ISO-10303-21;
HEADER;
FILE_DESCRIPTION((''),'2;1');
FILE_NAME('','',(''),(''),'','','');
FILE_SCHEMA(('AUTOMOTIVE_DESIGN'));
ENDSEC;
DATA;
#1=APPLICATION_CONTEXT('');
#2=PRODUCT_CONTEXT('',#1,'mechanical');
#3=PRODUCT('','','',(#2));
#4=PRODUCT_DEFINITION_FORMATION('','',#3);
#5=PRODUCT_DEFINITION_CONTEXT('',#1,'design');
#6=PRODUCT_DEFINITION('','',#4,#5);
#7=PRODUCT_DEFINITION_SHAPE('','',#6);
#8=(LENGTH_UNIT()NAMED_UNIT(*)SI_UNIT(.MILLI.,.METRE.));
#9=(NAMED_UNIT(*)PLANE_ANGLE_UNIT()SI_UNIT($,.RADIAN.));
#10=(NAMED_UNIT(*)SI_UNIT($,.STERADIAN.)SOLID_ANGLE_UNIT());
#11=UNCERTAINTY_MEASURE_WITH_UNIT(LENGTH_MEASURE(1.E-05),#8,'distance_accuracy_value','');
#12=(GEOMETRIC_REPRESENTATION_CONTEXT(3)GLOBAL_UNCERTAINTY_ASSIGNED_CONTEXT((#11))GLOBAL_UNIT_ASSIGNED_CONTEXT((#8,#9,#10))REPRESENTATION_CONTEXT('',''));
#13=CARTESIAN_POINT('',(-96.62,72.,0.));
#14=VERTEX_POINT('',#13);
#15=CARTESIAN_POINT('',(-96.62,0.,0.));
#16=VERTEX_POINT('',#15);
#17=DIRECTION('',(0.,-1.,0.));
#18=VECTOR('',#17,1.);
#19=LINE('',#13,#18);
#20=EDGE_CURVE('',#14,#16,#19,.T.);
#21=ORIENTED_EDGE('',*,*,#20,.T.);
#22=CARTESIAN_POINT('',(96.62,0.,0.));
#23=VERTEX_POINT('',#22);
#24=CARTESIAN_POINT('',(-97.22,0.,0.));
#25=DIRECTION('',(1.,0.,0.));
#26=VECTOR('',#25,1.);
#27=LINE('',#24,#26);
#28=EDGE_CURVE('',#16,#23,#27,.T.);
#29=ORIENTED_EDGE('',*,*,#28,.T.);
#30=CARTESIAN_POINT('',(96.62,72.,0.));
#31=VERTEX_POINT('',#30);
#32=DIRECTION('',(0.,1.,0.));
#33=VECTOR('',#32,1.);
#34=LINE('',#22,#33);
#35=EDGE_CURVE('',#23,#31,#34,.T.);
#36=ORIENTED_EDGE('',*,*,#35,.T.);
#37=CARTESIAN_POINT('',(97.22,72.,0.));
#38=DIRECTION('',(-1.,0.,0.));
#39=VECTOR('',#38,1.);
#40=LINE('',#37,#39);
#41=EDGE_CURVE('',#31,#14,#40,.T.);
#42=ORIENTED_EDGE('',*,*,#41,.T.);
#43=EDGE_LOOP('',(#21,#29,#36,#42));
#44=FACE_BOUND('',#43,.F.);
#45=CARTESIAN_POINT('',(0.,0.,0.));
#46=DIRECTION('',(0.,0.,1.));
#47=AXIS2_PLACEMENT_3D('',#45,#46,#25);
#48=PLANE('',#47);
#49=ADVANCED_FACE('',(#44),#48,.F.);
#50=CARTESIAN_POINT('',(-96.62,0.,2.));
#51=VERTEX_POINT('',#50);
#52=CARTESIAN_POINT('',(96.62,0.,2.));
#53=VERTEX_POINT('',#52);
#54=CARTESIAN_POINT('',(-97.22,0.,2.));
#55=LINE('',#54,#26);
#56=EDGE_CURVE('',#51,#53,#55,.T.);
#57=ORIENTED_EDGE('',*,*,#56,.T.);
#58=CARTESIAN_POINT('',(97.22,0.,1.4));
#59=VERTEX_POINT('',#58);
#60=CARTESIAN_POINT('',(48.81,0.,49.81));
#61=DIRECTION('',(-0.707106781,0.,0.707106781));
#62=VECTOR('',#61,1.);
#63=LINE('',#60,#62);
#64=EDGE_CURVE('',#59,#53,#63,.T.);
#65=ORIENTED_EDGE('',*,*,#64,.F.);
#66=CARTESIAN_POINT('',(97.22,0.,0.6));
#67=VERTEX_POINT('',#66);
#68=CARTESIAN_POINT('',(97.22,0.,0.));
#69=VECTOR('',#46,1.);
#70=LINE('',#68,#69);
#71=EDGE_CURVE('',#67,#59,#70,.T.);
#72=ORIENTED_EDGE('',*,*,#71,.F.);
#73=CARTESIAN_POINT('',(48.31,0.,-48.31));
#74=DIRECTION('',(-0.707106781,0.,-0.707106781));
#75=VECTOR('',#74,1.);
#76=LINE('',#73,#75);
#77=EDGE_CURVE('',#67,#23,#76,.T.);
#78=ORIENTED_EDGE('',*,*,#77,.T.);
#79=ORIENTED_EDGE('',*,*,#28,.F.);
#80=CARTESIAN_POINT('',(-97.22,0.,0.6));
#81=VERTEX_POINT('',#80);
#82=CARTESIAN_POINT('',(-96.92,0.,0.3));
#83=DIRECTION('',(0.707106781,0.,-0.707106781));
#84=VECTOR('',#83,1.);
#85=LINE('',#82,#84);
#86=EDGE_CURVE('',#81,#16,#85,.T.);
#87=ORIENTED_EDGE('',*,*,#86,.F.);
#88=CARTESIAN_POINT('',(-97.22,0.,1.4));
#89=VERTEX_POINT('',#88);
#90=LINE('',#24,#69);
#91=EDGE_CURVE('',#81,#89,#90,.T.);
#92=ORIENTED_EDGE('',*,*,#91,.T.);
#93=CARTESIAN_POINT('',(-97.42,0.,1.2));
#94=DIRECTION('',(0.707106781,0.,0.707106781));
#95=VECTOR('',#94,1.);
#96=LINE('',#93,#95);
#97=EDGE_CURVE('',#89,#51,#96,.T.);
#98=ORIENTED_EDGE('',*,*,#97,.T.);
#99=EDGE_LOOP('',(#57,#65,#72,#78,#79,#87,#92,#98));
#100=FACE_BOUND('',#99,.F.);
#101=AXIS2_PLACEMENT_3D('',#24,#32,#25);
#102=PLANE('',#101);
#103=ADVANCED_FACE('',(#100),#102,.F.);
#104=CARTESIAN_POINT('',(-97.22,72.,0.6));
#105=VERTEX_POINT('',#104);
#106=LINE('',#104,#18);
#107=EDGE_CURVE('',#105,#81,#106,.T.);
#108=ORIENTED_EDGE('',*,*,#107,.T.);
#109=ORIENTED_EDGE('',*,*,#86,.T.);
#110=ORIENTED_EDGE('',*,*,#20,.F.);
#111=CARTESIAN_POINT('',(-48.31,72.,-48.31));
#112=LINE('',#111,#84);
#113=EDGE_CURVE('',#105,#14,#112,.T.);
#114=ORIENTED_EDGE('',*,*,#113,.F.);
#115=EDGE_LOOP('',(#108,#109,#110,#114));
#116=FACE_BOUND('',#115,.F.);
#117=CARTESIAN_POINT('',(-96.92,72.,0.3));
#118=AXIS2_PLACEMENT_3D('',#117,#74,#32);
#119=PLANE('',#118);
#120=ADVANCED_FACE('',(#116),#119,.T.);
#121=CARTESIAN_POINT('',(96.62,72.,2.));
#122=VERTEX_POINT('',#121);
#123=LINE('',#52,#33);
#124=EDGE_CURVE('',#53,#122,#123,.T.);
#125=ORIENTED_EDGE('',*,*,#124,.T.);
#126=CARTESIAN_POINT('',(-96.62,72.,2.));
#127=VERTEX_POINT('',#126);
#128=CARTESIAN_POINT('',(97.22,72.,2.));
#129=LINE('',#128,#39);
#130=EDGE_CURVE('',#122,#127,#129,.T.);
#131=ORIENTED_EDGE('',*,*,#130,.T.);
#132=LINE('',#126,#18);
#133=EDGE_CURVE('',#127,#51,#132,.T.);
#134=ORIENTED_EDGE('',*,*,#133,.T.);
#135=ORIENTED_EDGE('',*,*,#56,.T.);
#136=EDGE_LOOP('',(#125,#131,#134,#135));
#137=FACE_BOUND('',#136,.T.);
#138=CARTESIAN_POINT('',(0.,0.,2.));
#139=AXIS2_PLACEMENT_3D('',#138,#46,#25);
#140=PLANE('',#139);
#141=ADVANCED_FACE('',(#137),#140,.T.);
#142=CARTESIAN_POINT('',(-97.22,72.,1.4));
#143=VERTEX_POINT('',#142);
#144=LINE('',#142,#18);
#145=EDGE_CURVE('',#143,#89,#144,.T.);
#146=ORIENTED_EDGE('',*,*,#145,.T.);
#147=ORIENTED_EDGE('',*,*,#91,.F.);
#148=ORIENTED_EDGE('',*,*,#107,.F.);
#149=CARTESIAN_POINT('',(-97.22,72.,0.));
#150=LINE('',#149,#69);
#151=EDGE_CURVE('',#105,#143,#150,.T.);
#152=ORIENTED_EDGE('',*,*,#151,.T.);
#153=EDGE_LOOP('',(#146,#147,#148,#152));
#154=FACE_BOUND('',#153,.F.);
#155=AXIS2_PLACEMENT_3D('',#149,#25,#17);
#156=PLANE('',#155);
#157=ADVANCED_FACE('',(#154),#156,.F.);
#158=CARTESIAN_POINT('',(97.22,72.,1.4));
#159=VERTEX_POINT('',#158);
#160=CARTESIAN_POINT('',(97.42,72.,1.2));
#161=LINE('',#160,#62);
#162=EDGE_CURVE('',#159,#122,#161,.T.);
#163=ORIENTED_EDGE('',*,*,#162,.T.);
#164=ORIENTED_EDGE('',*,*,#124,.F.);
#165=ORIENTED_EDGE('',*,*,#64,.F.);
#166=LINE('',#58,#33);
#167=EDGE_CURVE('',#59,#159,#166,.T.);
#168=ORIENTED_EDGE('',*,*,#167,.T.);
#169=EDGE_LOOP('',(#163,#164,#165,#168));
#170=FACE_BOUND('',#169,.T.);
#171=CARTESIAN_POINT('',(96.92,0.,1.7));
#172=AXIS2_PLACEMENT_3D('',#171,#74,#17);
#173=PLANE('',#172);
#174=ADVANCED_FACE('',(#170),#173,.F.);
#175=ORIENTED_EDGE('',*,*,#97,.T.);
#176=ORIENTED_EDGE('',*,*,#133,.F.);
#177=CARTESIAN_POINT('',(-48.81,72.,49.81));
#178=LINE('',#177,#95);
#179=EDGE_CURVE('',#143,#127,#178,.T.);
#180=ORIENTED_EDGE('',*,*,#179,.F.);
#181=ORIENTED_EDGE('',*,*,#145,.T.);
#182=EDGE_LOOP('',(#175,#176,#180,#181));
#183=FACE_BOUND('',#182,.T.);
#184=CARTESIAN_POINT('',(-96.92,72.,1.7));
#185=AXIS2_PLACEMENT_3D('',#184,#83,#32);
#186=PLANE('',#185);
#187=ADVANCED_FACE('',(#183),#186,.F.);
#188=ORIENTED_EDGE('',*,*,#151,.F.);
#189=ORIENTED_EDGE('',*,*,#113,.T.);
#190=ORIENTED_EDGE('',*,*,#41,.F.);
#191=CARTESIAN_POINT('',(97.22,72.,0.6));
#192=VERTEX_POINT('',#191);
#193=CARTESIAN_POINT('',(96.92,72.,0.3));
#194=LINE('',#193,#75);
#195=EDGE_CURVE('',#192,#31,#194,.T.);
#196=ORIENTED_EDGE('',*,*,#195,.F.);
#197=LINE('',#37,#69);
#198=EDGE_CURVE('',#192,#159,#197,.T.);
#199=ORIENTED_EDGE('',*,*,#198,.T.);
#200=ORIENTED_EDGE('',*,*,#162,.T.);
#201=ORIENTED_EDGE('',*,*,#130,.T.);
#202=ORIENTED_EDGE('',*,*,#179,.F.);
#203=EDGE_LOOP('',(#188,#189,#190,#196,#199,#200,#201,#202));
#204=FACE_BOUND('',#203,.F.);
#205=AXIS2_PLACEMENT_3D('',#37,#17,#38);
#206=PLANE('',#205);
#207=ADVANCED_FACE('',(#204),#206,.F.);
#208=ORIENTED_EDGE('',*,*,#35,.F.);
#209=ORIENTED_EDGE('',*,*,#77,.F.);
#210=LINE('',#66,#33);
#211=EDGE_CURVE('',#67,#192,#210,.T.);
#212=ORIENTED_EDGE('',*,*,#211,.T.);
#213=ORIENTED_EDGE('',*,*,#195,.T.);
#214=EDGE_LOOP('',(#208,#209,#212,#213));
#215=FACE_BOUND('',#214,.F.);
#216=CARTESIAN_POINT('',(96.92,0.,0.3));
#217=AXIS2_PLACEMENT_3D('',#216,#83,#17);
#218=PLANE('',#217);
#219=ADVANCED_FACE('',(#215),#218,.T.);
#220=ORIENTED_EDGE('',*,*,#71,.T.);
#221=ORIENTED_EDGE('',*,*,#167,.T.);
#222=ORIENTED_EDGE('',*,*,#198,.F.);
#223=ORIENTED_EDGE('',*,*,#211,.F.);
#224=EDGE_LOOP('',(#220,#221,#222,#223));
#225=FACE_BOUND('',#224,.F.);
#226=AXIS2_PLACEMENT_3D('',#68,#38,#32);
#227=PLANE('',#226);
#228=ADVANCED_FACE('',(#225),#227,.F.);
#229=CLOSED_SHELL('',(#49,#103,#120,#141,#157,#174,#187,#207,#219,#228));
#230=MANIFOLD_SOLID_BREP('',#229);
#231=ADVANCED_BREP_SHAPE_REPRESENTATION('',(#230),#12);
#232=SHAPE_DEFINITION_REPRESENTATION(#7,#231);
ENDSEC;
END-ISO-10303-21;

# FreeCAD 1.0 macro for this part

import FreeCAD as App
import Part
import Sketcher
Q = App.Units.Quantity


def edges_at(feature, points):
    """Names of the edges that pass closest to the given points."""
    edges = feature.Shape.Edges
    near = lambda p: min(range(len(edges)), key=lambda i: edges[i].distToShape(Part.Vertex(*p))[0])
    return sorted({f"Edge{near(p) + 1}" for p in points})

doc = App.newDocument("Part")
body = doc.addObject("PartDesign::Body", "Body")

# Sketch on XY plane
sketch1 = body.newObject("Sketcher::SketchObject", "Sketch")
sketch1.AttachmentSupport = (doc.getObject("XY_Plane"), [""])
sketch1.MapMode = "FlatFace"
sketch1.addGeometry(Part.LineSegment(App.Vector(-97, 72, 0), App.Vector(-97, 0, 0)), False)
sketch1.addGeometry(Part.LineSegment(App.Vector(-97, 0, 0), App.Vector(97, 0, 0)), False)
sketch1.addGeometry(Part.LineSegment(App.Vector(97, 0, 0), App.Vector(97, 72, 0)), False)
sketch1.addGeometry(Part.LineSegment(App.Vector(97, 72, 0), App.Vector(-97, 72, 0)), False)
sketch1.addConstraint(Sketcher.Constraint("Coincident", 0, 2, 1, 1))
sketch1.addConstraint(Sketcher.Constraint("Coincident", 1, 2, 2, 1))
sketch1.addConstraint(Sketcher.Constraint("Coincident", 2, 2, 3, 1))
sketch1.addConstraint(Sketcher.Constraint("Coincident", 3, 2, 0, 1))
sketch1.addConstraint(Sketcher.Constraint("Vertical", 0))
sketch1.addConstraint(Sketcher.Constraint("Horizontal", 1))
sketch1.addConstraint(Sketcher.Constraint("Vertical", 2))
sketch1.addConstraint(Sketcher.Constraint("Horizontal", 3))
sketch1.addConstraint(Sketcher.Constraint("Symmetric", 0, 2, 1, 2, -1, 1))
sketch1.addConstraint(Sketcher.Constraint("DistanceY", 0, 2, 0, 1, Q("72 mm")))
sketch1.addConstraint(Sketcher.Constraint("DistanceX", 1, 1, 1, 2, Q("194.44 mm")))
pad1 = body.newObject("PartDesign::Pad", "Pad")
pad1.Profile = sketch1
pad1.Length = 2
doc.recompute()

chamfer = body.newObject("PartDesign::Chamfer", "Chamfer")
chamfer.Base = (pad1, edges_at(pad1, [
    (97.22, 36, 0),
    (97.22, 36, 2),
    (-97.22, 36, 0),
    (-97.22, 36, 2),
]))
chamfer.Size = 0.6

doc.recompute()
